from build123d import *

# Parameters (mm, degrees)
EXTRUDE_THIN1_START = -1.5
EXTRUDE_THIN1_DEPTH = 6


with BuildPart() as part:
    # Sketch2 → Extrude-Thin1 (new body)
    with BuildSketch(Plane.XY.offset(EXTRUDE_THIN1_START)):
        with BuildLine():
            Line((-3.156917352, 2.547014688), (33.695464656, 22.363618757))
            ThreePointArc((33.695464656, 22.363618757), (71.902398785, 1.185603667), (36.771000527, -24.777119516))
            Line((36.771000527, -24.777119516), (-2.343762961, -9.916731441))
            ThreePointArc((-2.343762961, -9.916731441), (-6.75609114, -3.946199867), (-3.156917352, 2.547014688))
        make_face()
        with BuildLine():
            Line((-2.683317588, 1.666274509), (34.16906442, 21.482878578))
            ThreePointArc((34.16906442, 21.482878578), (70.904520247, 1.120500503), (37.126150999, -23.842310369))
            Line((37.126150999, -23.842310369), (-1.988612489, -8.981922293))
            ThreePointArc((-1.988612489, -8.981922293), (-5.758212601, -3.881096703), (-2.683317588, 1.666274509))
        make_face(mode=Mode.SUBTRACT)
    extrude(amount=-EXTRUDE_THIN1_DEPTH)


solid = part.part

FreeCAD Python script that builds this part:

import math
import FreeCAD as App
import Part
import Sketcher
Q = App.Units.Quantity

doc = App.newDocument("Part")
body = doc.addObject("PartDesign::Body", "Body")

# Sketch on XY plane
sketch1 = doc.addObject("Sketcher::SketchObject", "Sketch")
body.addObject(sketch1)
sketch1.AttachmentSupport = (doc.XY_Plane, [""])
sketch1.MapMode = "FlatFace"
sketch1.AttachmentOffset = App.Placement(App.Vector(0, 0, -1.5), App.Rotation())
sketch1.addGeometry(Part.LineSegment(App.Vector(34, 22, 0), App.Vector(-3, 3, 0)), False)
sketch1.addGeometry(Part.ArcOfCircle(Part.Circle(App.Vector(0, -3, 0), App.Vector(0, 0, 1), 7), math.radians(118), math.radians(249)), False)
sketch1.addGeometry(Part.LineSegment(App.Vector(-2, -10, 0), App.Vector(37, -25, 0)), False)
sketch1.addGeometry(Part.ArcOfCircle(Part.Circle(App.Vector(46, -1, 0), App.Vector(0, 0, 1), 26), math.radians(-111), math.radians(118)), False)
sketch1.addGeometry(Part.LineSegment(App.Vector(-3, 2, 0), App.Vector(34, 21, 0)), False)
sketch1.addGeometry(Part.ArcOfCircle(Part.Circle(App.Vector(46, -1, 0), App.Vector(0, 0, 1), 25), math.radians(-111), math.radians(118)), False)
sketch1.addGeometry(Part.LineSegment(App.Vector(37, -24, 0), App.Vector(-2, -9, 0)), False)
sketch1.addGeometry(Part.ArcOfCircle(Part.Circle(App.Vector(0, -3, 0), App.Vector(0, 0, 1), 6), math.radians(118), math.radians(249)), False)
sketch1.addConstraint(Sketcher.Constraint("Tangent", 0, 2, 1, 1))
sketch1.addConstraint(Sketcher.Constraint("Tangent", 1, 2, 2, 1))
sketch1.addConstraint(Sketcher.Constraint("Tangent", 2, 2, 3, 1))
sketch1.addConstraint(Sketcher.Constraint("Tangent", 3, 2, 0, 1))
sketch1.addConstraint(Sketcher.Constraint("Tangent", 4, 2, 5, 2))
sketch1.addConstraint(Sketcher.Constraint("Tangent", 5, 1, 6, 1))
sketch1.addConstraint(Sketcher.Constraint("Tangent", 6, 2, 7, 2))
sketch1.addConstraint(Sketcher.Constraint("Tangent", 7, 1, 4, 1))
sketch1.addConstraint(Sketcher.Constraint("Coincident", 5, 3, 3, 3))
sketch1.addConstraint(Sketcher.Constraint("Coincident", 7, 3, 1, 3))
sketch1.addConstraint(Sketcher.Constraint("Parallel", 0, 4))
sketch1.addConstraint(Sketcher.Constraint("Radius", 1, Q("6.865 mm")))
sketch1.addConstraint(Sketcher.Constraint("Radius", 3, Q("25.965 mm")))
sketch1.addConstraint(Sketcher.Constraint("Radius", 5, Q("24.965 mm")))
sketch1.addConstraint(Sketcher.Constraint("DistanceX", -1, 1, 2, 2, Q("36.771001 mm")))
sketch1.addConstraint(Sketcher.Constraint("DistanceY", 3, 3, -1, 1, Q("0.5048 mm")))
sketch1.addConstraint(Sketcher.Constraint("DistanceX", 0, 2, 3, 3, Q("49.1494 mm")))
sketch1.addConstraint(Sketcher.Constraint("DistanceY", 1, 2, -1, 1, Q("9.916731 mm")))
pad1 = doc.addObject("PartDesign::Pad", "Pad")
body.addObject(pad1)
pad1.Profile = sketch1
pad1.Length = 6
pad1.Reversed = True

doc.recompute()
